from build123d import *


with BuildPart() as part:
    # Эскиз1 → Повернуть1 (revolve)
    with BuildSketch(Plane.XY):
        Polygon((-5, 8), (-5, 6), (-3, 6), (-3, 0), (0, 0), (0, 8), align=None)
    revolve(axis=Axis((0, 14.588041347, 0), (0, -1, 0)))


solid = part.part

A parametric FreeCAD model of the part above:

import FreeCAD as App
import Part
import Sketcher
from FreeCAD import Vector

doc = App.newDocument("Part")
body = doc.addObject("PartDesign::Body", "Body")

# Sketch on XY plane
sketch1 = body.newObject("Sketcher::SketchObject", "Sketch")
sketch1.AttachmentSupport = (doc.getObject("XY_Plane"), [""])
sketch1.MapMode = "FlatFace"
sketch1.addGeometry(Part.LineSegment(Vector(-5, 8, 0), Vector(-5, 6, 0)), False)
sketch1.addGeometry(Part.LineSegment(Vector(-5, 6, 0), Vector(-3, 6, 0)), False)
sketch1.addGeometry(Part.LineSegment(Vector(-3, 6, 0), Vector(-3, 0, 0)), False)
sketch1.addGeometry(Part.LineSegment(Vector(-3, 0, 0), Vector(0, 0, 0)), False)
sketch1.addGeometry(Part.LineSegment(Vector(0, 0, 0), Vector(0, 8, 0)), False)
sketch1.addGeometry(Part.LineSegment(Vector(0, 8, 0), Vector(-5, 8, 0)), False)
sketch1.addConstraint(Sketcher.Constraint("Coincident", 0, 2, 1, 1))
sketch1.addConstraint(Sketcher.Constraint("Coincident", 1, 2, 2, 1))
sketch1.addConstraint(Sketcher.Constraint("Coincident", 2, 2, 3, 1))
sketch1.addConstraint(Sketcher.Constraint("Coincident", 3, 2, 4, 1))
sketch1.addConstraint(Sketcher.Constraint("Coincident", 4, 2, 5, 1))
sketch1.addConstraint(Sketcher.Constraint("Coincident", 5, 2, 0, 1))
sketch1.addConstraint(Sketcher.Constraint("Vertical", 0))
sketch1.addConstraint(Sketcher.Constraint("Horizontal", 1))
sketch1.addConstraint(Sketcher.Constraint("Vertical", 2))
sketch1.addConstraint(Sketcher.Constraint("Horizontal", 3))
sketch1.addConstraint(Sketcher.Constraint("Vertical", 4))
sketch1.addConstraint(Sketcher.Constraint("Horizontal", 5))
sketch1.addConstraint(Sketcher.Constraint("Coincident", 3, 2, -1, 1))
sketch1.addConstraint(Sketcher.Constraint("Equal", 1, 0))
sketch1.addConstraint(Sketcher.Constraint("DistanceX", 1, 1, 1, 2, 2.0))
sketch1.addConstraint(Sketcher.Constraint("DistanceX", 3, 1, 3, 2, 3.0))
sketch1.addConstraint(Sketcher.Constraint("DistanceY", 2, 2, 2, 1, 6.0))
revolution = body.newObject("PartDesign::Revolution", "Revolution")
revolution.Profile = sketch1
revolution.ReferenceAxis = (sketch1, ["V_Axis"])
revolution.Angle = 360

doc.recompute()
